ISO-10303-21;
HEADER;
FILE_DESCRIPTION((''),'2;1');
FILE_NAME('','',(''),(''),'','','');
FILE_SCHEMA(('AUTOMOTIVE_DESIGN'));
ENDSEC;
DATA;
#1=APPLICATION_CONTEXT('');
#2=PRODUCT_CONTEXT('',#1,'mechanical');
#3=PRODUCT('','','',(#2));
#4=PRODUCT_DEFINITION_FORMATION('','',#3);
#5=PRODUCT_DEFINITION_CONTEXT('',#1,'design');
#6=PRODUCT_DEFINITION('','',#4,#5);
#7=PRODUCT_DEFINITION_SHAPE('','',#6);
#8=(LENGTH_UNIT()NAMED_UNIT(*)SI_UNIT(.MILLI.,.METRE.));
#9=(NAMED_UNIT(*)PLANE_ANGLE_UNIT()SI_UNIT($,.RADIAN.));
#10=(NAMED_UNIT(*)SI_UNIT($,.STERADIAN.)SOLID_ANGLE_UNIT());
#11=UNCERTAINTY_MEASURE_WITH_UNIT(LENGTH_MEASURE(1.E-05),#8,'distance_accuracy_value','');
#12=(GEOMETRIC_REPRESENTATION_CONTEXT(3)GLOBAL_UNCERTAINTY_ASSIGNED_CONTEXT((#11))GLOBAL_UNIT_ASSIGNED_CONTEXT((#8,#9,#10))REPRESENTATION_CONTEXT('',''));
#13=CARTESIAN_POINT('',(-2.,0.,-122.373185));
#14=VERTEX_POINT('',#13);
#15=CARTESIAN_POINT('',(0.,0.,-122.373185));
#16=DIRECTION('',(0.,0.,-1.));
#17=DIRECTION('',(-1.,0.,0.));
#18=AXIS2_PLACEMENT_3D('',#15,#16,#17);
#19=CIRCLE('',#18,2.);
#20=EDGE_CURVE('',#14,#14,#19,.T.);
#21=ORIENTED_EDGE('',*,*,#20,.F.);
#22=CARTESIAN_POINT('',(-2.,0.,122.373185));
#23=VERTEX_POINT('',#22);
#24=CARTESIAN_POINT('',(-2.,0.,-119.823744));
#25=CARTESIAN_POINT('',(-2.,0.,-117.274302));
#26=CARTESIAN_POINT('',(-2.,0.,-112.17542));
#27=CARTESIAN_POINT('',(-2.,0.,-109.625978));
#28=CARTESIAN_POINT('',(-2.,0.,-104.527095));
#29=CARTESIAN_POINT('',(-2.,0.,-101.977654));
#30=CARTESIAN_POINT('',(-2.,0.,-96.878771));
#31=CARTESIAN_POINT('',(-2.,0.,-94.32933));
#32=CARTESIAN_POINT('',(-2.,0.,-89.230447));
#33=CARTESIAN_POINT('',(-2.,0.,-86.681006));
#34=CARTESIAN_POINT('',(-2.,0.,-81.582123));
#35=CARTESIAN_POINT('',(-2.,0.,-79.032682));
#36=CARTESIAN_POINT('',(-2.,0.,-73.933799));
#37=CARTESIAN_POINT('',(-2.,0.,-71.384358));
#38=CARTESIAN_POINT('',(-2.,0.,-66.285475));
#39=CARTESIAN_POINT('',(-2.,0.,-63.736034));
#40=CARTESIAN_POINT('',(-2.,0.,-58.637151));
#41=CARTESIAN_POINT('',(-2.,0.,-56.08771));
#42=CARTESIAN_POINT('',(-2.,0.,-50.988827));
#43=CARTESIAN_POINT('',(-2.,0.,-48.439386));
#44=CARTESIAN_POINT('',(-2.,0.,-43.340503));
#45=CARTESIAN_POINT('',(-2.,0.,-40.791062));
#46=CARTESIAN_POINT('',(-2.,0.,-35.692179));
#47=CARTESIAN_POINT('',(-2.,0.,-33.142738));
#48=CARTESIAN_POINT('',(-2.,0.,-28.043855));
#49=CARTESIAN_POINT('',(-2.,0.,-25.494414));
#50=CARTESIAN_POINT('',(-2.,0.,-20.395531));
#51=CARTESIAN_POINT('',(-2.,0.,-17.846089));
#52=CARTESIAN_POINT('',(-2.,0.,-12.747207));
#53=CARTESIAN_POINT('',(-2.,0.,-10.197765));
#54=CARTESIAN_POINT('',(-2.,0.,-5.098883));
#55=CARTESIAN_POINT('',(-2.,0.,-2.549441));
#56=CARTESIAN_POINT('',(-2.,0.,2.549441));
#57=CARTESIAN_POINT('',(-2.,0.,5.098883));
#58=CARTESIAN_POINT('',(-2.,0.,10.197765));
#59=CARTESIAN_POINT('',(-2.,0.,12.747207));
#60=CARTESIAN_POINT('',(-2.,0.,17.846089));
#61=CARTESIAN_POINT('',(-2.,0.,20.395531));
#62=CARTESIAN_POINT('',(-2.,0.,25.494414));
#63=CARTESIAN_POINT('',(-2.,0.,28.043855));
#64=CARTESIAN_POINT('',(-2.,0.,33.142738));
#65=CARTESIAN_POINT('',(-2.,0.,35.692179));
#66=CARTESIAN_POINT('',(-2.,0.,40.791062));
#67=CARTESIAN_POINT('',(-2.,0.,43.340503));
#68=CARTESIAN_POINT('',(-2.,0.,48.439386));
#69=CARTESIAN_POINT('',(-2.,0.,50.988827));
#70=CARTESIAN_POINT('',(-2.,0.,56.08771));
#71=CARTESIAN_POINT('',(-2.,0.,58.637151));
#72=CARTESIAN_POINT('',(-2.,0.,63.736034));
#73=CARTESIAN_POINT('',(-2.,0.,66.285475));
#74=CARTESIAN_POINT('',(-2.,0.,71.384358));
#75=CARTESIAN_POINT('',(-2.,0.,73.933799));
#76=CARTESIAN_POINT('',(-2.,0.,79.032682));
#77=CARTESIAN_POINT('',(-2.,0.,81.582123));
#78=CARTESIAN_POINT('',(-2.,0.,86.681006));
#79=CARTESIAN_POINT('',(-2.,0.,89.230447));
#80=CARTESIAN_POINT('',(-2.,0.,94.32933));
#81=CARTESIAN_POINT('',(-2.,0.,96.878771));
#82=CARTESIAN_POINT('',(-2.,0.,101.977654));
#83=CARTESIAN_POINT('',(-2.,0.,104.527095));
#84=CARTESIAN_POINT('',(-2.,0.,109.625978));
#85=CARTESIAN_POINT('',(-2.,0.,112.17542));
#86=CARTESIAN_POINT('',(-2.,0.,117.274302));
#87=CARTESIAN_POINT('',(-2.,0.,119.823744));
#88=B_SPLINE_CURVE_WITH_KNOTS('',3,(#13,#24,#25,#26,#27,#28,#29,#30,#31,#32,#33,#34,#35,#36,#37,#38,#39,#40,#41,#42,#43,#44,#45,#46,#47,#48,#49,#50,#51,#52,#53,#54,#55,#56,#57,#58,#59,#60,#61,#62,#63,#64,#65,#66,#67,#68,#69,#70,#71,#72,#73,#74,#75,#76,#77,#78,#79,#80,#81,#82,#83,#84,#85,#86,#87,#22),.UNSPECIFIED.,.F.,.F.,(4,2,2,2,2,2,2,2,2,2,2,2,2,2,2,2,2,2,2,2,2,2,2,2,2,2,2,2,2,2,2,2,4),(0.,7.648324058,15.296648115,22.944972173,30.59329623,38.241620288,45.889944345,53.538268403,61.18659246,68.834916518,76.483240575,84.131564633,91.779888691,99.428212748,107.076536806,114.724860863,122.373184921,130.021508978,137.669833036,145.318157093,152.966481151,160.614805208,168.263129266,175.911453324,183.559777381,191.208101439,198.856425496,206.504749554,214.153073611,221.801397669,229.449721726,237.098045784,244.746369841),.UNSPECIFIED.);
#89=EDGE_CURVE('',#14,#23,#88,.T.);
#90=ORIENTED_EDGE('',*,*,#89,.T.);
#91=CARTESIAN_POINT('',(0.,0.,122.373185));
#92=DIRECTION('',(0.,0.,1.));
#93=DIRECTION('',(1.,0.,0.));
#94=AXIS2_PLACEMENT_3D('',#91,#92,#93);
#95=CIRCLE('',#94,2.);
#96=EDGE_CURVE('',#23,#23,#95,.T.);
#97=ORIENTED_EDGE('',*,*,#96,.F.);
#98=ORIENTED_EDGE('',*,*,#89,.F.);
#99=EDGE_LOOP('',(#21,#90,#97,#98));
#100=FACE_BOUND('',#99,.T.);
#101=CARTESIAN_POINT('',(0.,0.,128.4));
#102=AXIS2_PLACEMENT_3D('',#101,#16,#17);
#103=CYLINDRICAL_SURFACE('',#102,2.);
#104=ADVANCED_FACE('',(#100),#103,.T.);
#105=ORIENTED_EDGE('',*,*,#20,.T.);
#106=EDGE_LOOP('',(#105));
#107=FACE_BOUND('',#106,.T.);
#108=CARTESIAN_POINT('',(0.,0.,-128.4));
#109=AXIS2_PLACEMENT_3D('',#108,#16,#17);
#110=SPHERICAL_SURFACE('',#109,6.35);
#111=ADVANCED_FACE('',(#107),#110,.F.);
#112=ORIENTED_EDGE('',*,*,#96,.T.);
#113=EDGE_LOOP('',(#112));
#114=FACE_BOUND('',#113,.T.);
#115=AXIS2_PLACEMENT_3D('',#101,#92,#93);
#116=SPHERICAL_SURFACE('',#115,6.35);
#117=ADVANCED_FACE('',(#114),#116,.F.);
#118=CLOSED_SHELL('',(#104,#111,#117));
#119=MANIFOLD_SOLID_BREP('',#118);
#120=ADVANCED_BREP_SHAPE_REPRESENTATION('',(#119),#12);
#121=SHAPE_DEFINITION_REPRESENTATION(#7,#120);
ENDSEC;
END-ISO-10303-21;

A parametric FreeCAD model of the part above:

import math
import FreeCAD as App
import Part
import Sketcher
Q = App.Units.Quantity

doc = App.newDocument("Part")
body = doc.addObject("PartDesign::Body", "Body")

# Sketch on XY plane
sketch1 = body.newObject("Sketcher::SketchObject", "Sketch")
sketch1.AttachmentSupport = (doc.getObject("XY_Plane"), [""])
sketch1.MapMode = "FlatFace"
sketch1.addGeometry(Part.Circle(App.Vector(0, 0, 0), App.Vector(0, 0, 1), 2), False)
sketch1.addConstraint([
    Sketcher.Constraint("Coincident", 0, 3, -1, 1),
    Sketcher.Constraint("Diameter", 0, Q("4 mm")),
])
pad1 = body.newObject("PartDesign::Pad", "Pad")
pad1.Profile = sketch1
pad1.Length = 256.8
pad1.Midplane = True

# Sketch on XZ plane
sketch2 = body.newObject("Sketcher::SketchObject", "Sketch001")
sketch2.AttachmentSupport = (doc.getObject("XZ_Plane"), [""])
sketch2.MapMode = "FlatFace"
sketch2.addGeometry([
    Part.LineSegment(App.Vector(6.35, -128.4, 0), App.Vector(-6.35, -128.4, 0)),
    Part.ArcOfCircle(Part.Circle(App.Vector(0, -128.4, 0), App.Vector(0, 0, 1), 6.35), math.radians(0), math.radians(180)),
], False)
sketch2.addGeometry(Part.LineSegment(App.Vector(6.35, -128.4, 0), App.Vector(-6.35, -128.4, 0)), True)  # axis
sketch2.addConstraint([
    Sketcher.Constraint("Coincident", 0, 1, 1, 1),
    Sketcher.Constraint("Coincident", 1, 2, 0, 2),
    Sketcher.Constraint("Horizontal", 0),
    Sketcher.Constraint("Horizontal", 2),
    Sketcher.Constraint("Coincident", 2, 1, 0, 1),
    Sketcher.Constraint("PointOnObject", 1, 3, -2),
    Sketcher.Constraint("Horizontal", 1, 3, 0, 1),
    Sketcher.Constraint("Equal", 0, 2),
    Sketcher.Constraint("Radius", 1, Q("6.35 mm")),
    Sketcher.Constraint("DistanceY", 1, 3, -1, 1, Q("128.4 mm")),
])
groove = body.newObject("PartDesign::Groove", "Groove")
groove.Profile = sketch2
groove.ReferenceAxis = (sketch2, ["Axis0"])
groove.Angle = 360
doc.recompute()

mirrored = body.newObject("PartDesign::Mirrored", "Mirrored")
mirrored.Originals = [groove]
mirrored.MirrorPlane = (doc.getObject("XY_Plane"), [""])
body.Tip = mirrored

doc.recompute()
